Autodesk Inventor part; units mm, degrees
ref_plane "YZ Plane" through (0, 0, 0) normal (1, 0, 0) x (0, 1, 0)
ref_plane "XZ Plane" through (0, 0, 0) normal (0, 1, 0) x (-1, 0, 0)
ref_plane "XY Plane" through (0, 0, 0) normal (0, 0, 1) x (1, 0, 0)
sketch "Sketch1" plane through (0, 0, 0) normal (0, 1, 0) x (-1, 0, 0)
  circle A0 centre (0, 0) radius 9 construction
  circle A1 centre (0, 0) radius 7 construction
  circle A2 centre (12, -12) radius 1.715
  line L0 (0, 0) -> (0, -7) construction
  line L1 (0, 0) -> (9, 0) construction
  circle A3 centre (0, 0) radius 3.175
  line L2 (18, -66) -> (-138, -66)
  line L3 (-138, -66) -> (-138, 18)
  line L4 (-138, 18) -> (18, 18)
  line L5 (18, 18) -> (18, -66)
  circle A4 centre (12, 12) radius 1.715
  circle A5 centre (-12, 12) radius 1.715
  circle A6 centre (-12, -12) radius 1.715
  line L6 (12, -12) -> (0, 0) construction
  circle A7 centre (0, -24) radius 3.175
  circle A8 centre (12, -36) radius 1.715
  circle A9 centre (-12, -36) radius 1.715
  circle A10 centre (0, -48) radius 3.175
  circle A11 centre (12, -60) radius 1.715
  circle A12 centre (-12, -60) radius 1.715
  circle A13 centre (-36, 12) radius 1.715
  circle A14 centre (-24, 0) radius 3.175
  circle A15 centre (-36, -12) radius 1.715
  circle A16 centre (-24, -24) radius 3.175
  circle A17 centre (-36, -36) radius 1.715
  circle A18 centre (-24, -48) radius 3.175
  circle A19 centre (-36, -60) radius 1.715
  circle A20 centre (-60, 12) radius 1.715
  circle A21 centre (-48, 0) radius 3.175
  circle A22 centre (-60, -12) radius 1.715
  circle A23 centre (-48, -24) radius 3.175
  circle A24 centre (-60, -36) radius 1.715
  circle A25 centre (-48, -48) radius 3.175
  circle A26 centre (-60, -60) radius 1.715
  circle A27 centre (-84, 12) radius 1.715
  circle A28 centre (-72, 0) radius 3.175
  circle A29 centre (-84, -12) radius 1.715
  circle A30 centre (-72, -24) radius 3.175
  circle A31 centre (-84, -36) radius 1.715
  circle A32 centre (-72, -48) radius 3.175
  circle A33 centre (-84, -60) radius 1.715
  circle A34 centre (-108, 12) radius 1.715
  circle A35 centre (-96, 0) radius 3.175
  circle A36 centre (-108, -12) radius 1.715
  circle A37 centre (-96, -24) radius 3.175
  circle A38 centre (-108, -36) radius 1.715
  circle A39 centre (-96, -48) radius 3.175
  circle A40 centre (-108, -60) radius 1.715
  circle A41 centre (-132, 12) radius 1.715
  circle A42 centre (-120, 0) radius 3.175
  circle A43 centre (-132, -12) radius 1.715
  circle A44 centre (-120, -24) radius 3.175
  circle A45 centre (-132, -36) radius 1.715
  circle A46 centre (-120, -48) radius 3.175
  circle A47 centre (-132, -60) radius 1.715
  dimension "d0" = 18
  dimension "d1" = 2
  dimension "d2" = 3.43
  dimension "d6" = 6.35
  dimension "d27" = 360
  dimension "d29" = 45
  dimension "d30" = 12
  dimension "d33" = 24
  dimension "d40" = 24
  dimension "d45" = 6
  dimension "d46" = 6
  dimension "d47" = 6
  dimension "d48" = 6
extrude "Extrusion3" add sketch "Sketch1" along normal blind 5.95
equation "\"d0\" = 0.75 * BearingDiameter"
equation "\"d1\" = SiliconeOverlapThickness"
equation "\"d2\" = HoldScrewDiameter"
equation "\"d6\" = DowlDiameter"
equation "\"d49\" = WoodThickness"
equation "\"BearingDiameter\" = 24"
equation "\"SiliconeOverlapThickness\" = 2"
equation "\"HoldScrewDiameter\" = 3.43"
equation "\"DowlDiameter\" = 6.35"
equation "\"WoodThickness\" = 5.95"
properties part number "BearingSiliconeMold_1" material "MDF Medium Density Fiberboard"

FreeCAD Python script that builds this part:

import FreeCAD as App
import Part
import Sketcher
from FreeCAD import Vector


def add_polygon(sketch, points):
    """Adds a closed chain of lines whose ends are joined by coincident constraints."""
    first, n = sketch.GeometryCount, len(points)
    for a, b in zip(points, points[1:] + points[:1]):
        sketch.addGeometry(Part.LineSegment(App.Vector(*a, 0), App.Vector(*b, 0)), False)
    for i in range(n):
        sketch.addConstraint(Sketcher.Constraint("Coincident", first + i, 2, first + (i + 1) % n, 1))

doc = App.newDocument("Part")
body = doc.addObject("PartDesign::Body", "Body")

sketch1 = body.newObject("Sketcher::SketchObject", "Sketch")
sketch1.AttachmentSupport = (doc.getObject("XZ_Plane"), [""])
sketch1.MapMode = "FlatFace"
add_polygon(sketch1, [(138, -66), (-18, -66), (-18, 18), (138, 18)])
sketch1.addGeometry(Part.Circle(Vector(132, -60, 0), Vector(0, 0, 1), 1.715), False)
sketch1.addGeometry(Part.Circle(Vector(108, -60, 0), Vector(0, 0, 1), 1.715), False)
sketch1.addGeometry(Part.Circle(Vector(120, -48, 0), Vector(0, 0, 1), 3.175), False)
sketch1.addGeometry(Part.Circle(Vector(84, -60, 0), Vector(0, 0, 1), 1.715), False)
sketch1.addGeometry(Part.Circle(Vector(96, -48, 0), Vector(0, 0, 1), 3.175), False)
sketch1.addGeometry(Part.Circle(Vector(72, -48, 0), Vector(0, 0, 1), 3.175), False)
sketch1.addGeometry(Part.Circle(Vector(132, -36, 0), Vector(0, 0, 1), 1.715), False)
sketch1.addGeometry(Part.Circle(Vector(108, -36, 0), Vector(0, 0, 1), 1.715), False)
sketch1.addGeometry(Part.Circle(Vector(84, -36, 0), Vector(0, 0, 1), 1.715), False)
sketch1.addGeometry(Part.Circle(Vector(60, -60, 0), Vector(0, 0, 1), 1.715), False)
sketch1.addGeometry(Part.Circle(Vector(36, -60, 0), Vector(0, 0, 1), 1.715), False)
sketch1.addGeometry(Part.Circle(Vector(48, -48, 0), Vector(0, 0, 1), 3.175), False)
sketch1.addGeometry(Part.Circle(Vector(24, -48, 0), Vector(0, 0, 1), 3.175), False)
sketch1.addGeometry(Part.Circle(Vector(12, -60, 0), Vector(0, 0, 1), 1.715), False)
sketch1.addGeometry(Part.Circle(Vector(-12, -60, 0), Vector(0, 0, 1), 1.715), False)
sketch1.addGeometry(Part.Circle(Vector(0, -48, 0), Vector(0, 0, 1), 3.175), False)
sketch1.addGeometry(Part.Circle(Vector(60, -36, 0), Vector(0, 0, 1), 1.715), False)
sketch1.addGeometry(Part.Circle(Vector(36, -36, 0), Vector(0, 0, 1), 1.715), False)
sketch1.addGeometry(Part.Circle(Vector(12, -36, 0), Vector(0, 0, 1), 1.715), False)
sketch1.addGeometry(Part.Circle(Vector(-12, -36, 0), Vector(0, 0, 1), 1.715), False)
sketch1.addGeometry(Part.Circle(Vector(120, -24, 0), Vector(0, 0, 1), 3.175), False)
sketch1.addGeometry(Part.Circle(Vector(132, -12, 0), Vector(0, 0, 1), 1.715), False)
sketch1.addGeometry(Part.Circle(Vector(108, -12, 0), Vector(0, 0, 1), 1.715), False)
sketch1.addGeometry(Part.Circle(Vector(96, -24, 0), Vector(0, 0, 1), 3.175), False)
sketch1.addGeometry(Part.Circle(Vector(72, -24, 0), Vector(0, 0, 1), 3.175), False)
sketch1.addGeometry(Part.Circle(Vector(84, -12, 0), Vector(0, 0, 1), 1.715), False)
sketch1.addGeometry(Part.Circle(Vector(120, 0, 0), Vector(0, 0, 1), 3.175), False)
sketch1.addGeometry(Part.Circle(Vector(132, 12, 0), Vector(0, 0, 1), 1.715), False)
sketch1.addGeometry(Part.Circle(Vector(108, 12, 0), Vector(0, 0, 1), 1.715), False)
sketch1.addGeometry(Part.Circle(Vector(96, 0, 0), Vector(0, 0, 1), 3.175), False)
sketch1.addGeometry(Part.Circle(Vector(72, 0, 0), Vector(0, 0, 1), 3.175), False)
sketch1.addGeometry(Part.Circle(Vector(84, 12, 0), Vector(0, 0, 1), 1.715), False)
sketch1.addGeometry(Part.Circle(Vector(48, -24, 0), Vector(0, 0, 1), 3.175), False)
sketch1.addGeometry(Part.Circle(Vector(24, -24, 0), Vector(0, 0, 1), 3.175), False)
sketch1.addGeometry(Part.Circle(Vector(60, -12, 0), Vector(0, 0, 1), 1.715), False)
sketch1.addGeometry(Part.Circle(Vector(36, -12, 0), Vector(0, 0, 1), 1.715), False)
sketch1.addGeometry(Part.Circle(Vector(0, -24, 0), Vector(0, 0, 1), 3.175), False)
sketch1.addGeometry(Part.Circle(Vector(12, -12, 0), Vector(0, 0, 1), 1.715), False)
sketch1.addGeometry(Part.Circle(Vector(-12, -12, 0), Vector(0, 0, 1), 1.715), False)
sketch1.addGeometry(Part.Circle(Vector(48, 0, 0), Vector(0, 0, 1), 3.175), False)
sketch1.addGeometry(Part.Circle(Vector(24, 0, 0), Vector(0, 0, 1), 3.175), False)
sketch1.addGeometry(Part.Circle(Vector(60, 12, 0), Vector(0, 0, 1), 1.715), False)
sketch1.addGeometry(Part.Circle(Vector(36, 12, 0), Vector(0, 0, 1), 1.715), False)
sketch1.addGeometry(Part.Circle(Vector(0, 0, 0), Vector(0, 0, 1), 3.175), False)
sketch1.addGeometry(Part.Circle(Vector(12, 12, 0), Vector(0, 0, 1), 1.715), False)
sketch1.addGeometry(Part.Circle(Vector(-12, 12, 0), Vector(0, 0, 1), 1.715), False)
sketch1.addConstraint([
    Sketcher.Constraint("Horizontal", 0),
    Sketcher.Constraint("Vertical", 1),
    Sketcher.Constraint("Horizontal", 2),
    Sketcher.Constraint("Vertical", 3),
    Sketcher.Constraint("Coincident", 47, 3, -1, 1),
    Sketcher.Constraint("Equal", 4, 5),
    Sketcher.Constraint("Equal", 5, 7),
    Sketcher.Constraint("Equal", 6, 8),
    Sketcher.Constraint("Equal", 8, 9),
    Sketcher.Constraint("Equal", 7, 10),
    Sketcher.Constraint("Equal", 10, 11),
    Sketcher.Constraint("Equal", 11, 12),
    Sketcher.Constraint("Equal", 12, 13),
    Sketcher.Constraint("Equal", 13, 14),
    Sketcher.Constraint("Equal", 9, 15),
    Sketcher.Constraint("Equal", 15, 16),
    Sketcher.Constraint("Equal", 14, 17),
    Sketcher.Constraint("Equal", 17, 18),
    Sketcher.Constraint("Equal", 16, 19),
    Sketcher.Constraint("Equal", 18, 20),
    Sketcher.Constraint("Equal", 20, 21),
    Sketcher.Constraint("Equal", 21, 22),
    Sketcher.Constraint("Equal", 22, 23),
    Sketcher.Constraint("Equal", 19, 24),
    Sketcher.Constraint("Equal", 23, 25),
    Sketcher.Constraint("Equal", 25, 26),
    Sketcher.Constraint("Equal", 24, 27),
    Sketcher.Constraint("Equal", 27, 28),
    Sketcher.Constraint("Equal", 26, 29),
    Sketcher.Constraint("Equal", 28, 30),
    Sketcher.Constraint("Equal", 29, 31),
    Sketcher.Constraint("Equal", 31, 32),
    Sketcher.Constraint("Equal", 30, 33),
    Sketcher.Constraint("Equal", 33, 34),
    Sketcher.Constraint("Equal", 32, 35),
    Sketcher.Constraint("Equal", 34, 36),
    Sketcher.Constraint("Equal", 36, 37),
    Sketcher.Constraint("Equal", 35, 38),
    Sketcher.Constraint("Equal", 38, 39),
    Sketcher.Constraint("Equal", 37, 40),
    Sketcher.Constraint("Equal", 39, 41),
    Sketcher.Constraint("Equal", 41, 42),
    Sketcher.Constraint("Equal", 40, 43),
    Sketcher.Constraint("Equal", 43, 44),
    Sketcher.Constraint("Equal", 42, 45),
    Sketcher.Constraint("Equal", 45, 46),
    Sketcher.Constraint("Equal", 44, 47),
    Sketcher.Constraint("Equal", 46, 48),
    Sketcher.Constraint("Equal", 48, 49),
    Sketcher.Constraint("Symmetric", 42, 3, 48, 3, -1, 1),
    Sketcher.Constraint("Symmetric", 41, 3, 49, 3, -1, 1),
    Sketcher.Constraint("Symmetric", 17, 3, 18, 3, -2),
    Sketcher.Constraint("Symmetric", 22, 3, 23, 3, -2),
    Sketcher.Constraint("Symmetric", 41, 3, 42, 3, -2),
    Sketcher.Constraint("Symmetric", 25, 3, 31, 3, -1),
    Sketcher.Constraint("Symmetric", 26, 3, 32, 3, -1),
    Sketcher.Constraint("Symmetric", 29, 3, 35, 3, -1),
    Sketcher.Constraint("Symmetric", 38, 3, 45, 3, -1),
    Sketcher.Constraint("Symmetric", 39, 3, 46, 3, -1),
    Sketcher.Constraint("PointOnObject", 19, 3, -2),
    Sketcher.Constraint("PointOnObject", 30, 3, -1),
    Sketcher.Constraint("PointOnObject", 33, 3, -1),
    Sketcher.Constraint("PointOnObject", 34, 3, -1),
    Sketcher.Constraint("PointOnObject", 40, 3, -2),
    Sketcher.Constraint("PointOnObject", 43, 3, -1),
    Sketcher.Constraint("PointOnObject", 44, 3, -1),
    Sketcher.Constraint("Horizontal", 4, 3, 5, 3),
    Sketcher.Constraint("Horizontal", 5, 3, 7, 3),
    Sketcher.Constraint("Horizontal", 6, 3, 8, 3),
    Sketcher.Constraint("Horizontal", 8, 3, 9, 3),
    Sketcher.Constraint("Horizontal", 10, 3, 11, 3),
    Sketcher.Constraint("Horizontal", 11, 3, 12, 3),
    Sketcher.Constraint("Horizontal", 7, 3, 13, 3),
    Sketcher.Constraint("Horizontal", 13, 3, 14, 3),
    Sketcher.Constraint("Horizontal", 9, 3, 15, 3),
    Sketcher.Constraint("Horizontal", 15, 3, 16, 3),
    Sketcher.Constraint("Horizontal", 14, 3, 17, 3),
    Sketcher.Constraint("Horizontal", 16, 3, 19, 3),
    Sketcher.Constraint("Horizontal", 12, 3, 20, 3),
    Sketcher.Constraint("Horizontal", 20, 3, 21, 3),
    Sketcher.Constraint("Horizontal", 21, 3, 22, 3),
    Sketcher.Constraint("Horizontal", 25, 3, 26, 3),
    Sketcher.Constraint("Horizontal", 24, 3, 27, 3),
    Sketcher.Constraint("Horizontal", 27, 3, 28, 3),
    Sketcher.Constraint("Horizontal", 26, 3, 29, 3),
    Sketcher.Constraint("Horizontal", 28, 3, 36, 3),
    Sketcher.Constraint("Horizontal", 36, 3, 37, 3),
    Sketcher.Constraint("Horizontal", 29, 3, 38, 3),
    Sketcher.Constraint("Horizontal", 38, 3, 39, 3),
    Sketcher.Constraint("Horizontal", 37, 3, 40, 3),
    Sketcher.Constraint("Horizontal", 39, 3, 41, 3),
    Sketcher.Constraint("Vertical", 4, 3, 10, 3),
    Sketcher.Constraint("Vertical", 5, 3, 11, 3),
    Sketcher.Constraint("Vertical", 7, 3, 12, 3),
    Sketcher.Constraint("Vertical", 13, 3, 20, 3),
    Sketcher.Constraint("Vertical", 14, 3, 21, 3),
    Sketcher.Constraint("Vertical", 17, 3, 22, 3),
    Sketcher.Constraint("Vertical", 6, 3, 24, 3),
    Sketcher.Constraint("Vertical", 10, 3, 25, 3),
    Sketcher.Constraint("Vertical", 11, 3, 26, 3),
    Sketcher.Constraint("Vertical", 8, 3, 27, 3),
    Sketcher.Constraint("Vertical", 9, 3, 28, 3),
    Sketcher.Constraint("Vertical", 12, 3, 29, 3),
    Sketcher.Constraint("Vertical", 24, 3, 30, 3),
    Sketcher.Constraint("Vertical", 27, 3, 33, 3),
    Sketcher.Constraint("Vertical", 28, 3, 34, 3),
    Sketcher.Constraint("Vertical", 15, 3, 36, 3),
    Sketcher.Constraint("Vertical", 16, 3, 37, 3),
    Sketcher.Constraint("Vertical", 20, 3, 38, 3),
    Sketcher.Constraint("Vertical", 21, 3, 39, 3),
    Sketcher.Constraint("Vertical", 22, 3, 41, 3),
    Sketcher.Constraint("Vertical", 36, 3, 43, 3),
    Sketcher.Constraint("Vertical", 37, 3, 44, 3),
    Sketcher.Constraint("Diameter", 4, 3.43),
    Sketcher.Constraint("Diameter", 6, 6.35),
    Sketcher.Constraint("DistanceX", -1, 1, 16, 3, 24.0),
    Sketcher.Constraint("DistanceX", -1, 1, 17, 3, 12.0),
    Sketcher.Constraint("DistanceY", 24, 3, -1, 1, 24.0),
    Sketcher.Constraint("DistanceY", 25, 3, -1, 1, 12.0),
    Sketcher.Constraint("DistanceX", 0, 2, -1, 1, 18.0),
    Sketcher.Constraint("DistanceY", -1, 1, 1, 2, 18.0),
    Sketcher.Constraint("DistanceX", 5, 3, 4, 3, 24.0),
    Sketcher.Constraint("DistanceX", 6, 3, 4, 3, 12.0),
    Sketcher.Constraint("DistanceY", 4, 3, 6, 3, 12.0),
    Sketcher.Constraint("DistanceX", 7, 3, 5, 3, 24.0),
    Sketcher.Constraint("DistanceX", 8, 3, 5, 3, 12.0),
    Sketcher.Constraint("DistanceX", 9, 3, 7, 3, 12.0),
    Sketcher.Constraint("DistanceY", 6, 3, 10, 3, 12.0),
    Sketcher.Constraint("DistanceX", 13, 3, 9, 3, 12.0),
    Sketcher.Constraint("DistanceX", 14, 3, 13, 3, 24.0),
    Sketcher.Constraint("DistanceX", 15, 3, 13, 3, 12.0),
    Sketcher.Constraint("DistanceX", 16, 3, 14, 3, 12.0),
    Sketcher.Constraint("DistanceY", 10, 3, 24, 3, 12.0),
    Sketcher.Constraint("DistanceY", 0, 2, 18, 3, 6.0),
    Sketcher.Constraint("DistanceX", 31, 3, 2, 2, 6.0),
])
pad1 = body.newObject("PartDesign::Pad", "Pad")
pad1.Profile = sketch1
pad1.Length = 5.95
pad1.Reversed = True

doc.recompute()
